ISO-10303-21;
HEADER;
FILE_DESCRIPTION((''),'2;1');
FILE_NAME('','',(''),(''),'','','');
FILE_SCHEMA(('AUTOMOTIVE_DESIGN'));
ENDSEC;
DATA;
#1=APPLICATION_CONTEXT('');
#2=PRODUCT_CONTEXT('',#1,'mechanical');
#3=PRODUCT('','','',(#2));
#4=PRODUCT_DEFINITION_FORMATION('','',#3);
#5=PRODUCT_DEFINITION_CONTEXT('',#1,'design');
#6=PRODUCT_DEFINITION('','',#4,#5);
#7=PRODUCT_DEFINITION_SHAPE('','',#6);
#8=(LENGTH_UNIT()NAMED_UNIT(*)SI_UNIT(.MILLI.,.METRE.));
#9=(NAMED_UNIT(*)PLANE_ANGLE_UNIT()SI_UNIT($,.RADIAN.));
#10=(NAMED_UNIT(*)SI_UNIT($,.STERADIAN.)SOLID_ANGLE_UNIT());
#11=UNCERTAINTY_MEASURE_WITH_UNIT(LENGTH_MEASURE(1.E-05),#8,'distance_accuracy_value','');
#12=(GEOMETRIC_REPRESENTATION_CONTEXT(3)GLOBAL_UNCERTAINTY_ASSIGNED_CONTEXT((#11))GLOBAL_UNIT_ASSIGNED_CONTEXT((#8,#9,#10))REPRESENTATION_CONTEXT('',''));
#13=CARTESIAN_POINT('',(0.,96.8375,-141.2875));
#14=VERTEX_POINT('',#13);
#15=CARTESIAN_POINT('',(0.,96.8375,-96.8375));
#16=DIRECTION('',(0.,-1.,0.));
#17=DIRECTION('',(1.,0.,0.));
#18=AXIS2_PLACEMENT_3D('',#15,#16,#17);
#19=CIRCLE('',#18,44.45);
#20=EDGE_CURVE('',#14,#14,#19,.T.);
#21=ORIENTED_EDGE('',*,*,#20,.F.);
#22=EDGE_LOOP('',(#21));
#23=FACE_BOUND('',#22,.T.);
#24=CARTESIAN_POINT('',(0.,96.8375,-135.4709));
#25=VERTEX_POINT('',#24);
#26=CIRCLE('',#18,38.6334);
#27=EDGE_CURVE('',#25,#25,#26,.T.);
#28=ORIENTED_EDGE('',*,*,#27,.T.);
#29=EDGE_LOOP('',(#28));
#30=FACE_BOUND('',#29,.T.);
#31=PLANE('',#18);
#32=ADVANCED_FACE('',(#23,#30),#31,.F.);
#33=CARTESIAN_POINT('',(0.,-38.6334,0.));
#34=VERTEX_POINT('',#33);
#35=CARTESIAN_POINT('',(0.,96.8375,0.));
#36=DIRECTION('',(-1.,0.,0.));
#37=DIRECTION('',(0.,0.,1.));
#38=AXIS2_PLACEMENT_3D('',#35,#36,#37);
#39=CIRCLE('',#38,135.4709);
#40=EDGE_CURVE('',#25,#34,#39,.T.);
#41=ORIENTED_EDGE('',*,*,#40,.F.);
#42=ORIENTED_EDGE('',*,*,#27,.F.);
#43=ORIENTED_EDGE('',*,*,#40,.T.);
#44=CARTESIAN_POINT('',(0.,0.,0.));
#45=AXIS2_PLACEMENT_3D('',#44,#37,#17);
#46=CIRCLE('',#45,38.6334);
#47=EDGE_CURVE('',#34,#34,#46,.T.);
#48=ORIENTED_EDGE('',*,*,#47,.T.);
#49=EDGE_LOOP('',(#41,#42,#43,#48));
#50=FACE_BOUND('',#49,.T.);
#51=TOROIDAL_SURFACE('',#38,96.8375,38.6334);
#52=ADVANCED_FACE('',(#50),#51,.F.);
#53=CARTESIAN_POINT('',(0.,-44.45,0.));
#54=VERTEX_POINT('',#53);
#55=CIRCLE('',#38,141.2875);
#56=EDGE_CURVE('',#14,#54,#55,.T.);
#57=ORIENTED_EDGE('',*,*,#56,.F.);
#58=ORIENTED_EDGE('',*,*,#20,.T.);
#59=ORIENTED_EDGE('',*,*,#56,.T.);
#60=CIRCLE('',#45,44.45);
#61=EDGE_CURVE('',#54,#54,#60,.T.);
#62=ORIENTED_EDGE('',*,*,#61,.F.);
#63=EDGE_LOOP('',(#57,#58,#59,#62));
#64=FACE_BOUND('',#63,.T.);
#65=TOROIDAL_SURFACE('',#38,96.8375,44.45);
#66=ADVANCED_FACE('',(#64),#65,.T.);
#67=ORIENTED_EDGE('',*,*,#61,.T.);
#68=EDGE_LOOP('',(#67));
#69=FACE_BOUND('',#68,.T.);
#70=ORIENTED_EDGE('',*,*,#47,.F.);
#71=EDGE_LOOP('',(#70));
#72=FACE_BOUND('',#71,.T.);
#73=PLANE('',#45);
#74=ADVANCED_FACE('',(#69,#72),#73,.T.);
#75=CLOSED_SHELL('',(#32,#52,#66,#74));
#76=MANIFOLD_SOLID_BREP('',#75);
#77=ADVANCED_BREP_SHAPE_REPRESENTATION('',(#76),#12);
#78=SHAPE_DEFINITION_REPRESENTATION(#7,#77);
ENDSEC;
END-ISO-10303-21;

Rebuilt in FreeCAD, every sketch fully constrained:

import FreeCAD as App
import Part
import Sketcher

V = App.Vector
Q = App.Units.Quantity

doc = App.newDocument("Part")
body = doc.addObject("PartDesign::Body", "Body")

# Sketch on XY plane
sketch1 = body.newObject("Sketcher::SketchObject", "Sketch")
sketch1.AttachmentSupport = (doc.getObject("XY_Plane"), [""])
sketch1.MapMode = "FlatFace"
sketch1.addGeometry(Part.Circle(V(0, 0, 0), V(0, 0, 1), 44.45), False)
sketch1.addGeometry(Part.Circle(V(0, 0, 0), V(0, 0, 1), 38.6334), False)
sketch1.addGeometry(Part.LineSegment(V(0, 96.8375, 0), V(10, 96.8375, 0)), True)  # axis
sketch1.addConstraint(Sketcher.Constraint("Horizontal", 2))
sketch1.addConstraint(Sketcher.Constraint("Coincident", 0, 3, -1, 1))
sketch1.addConstraint(Sketcher.Constraint("Coincident", 1, 3, -1, 1))
sketch1.addConstraint(Sketcher.Constraint("PointOnObject", 2, 1, -2))
sketch1.addConstraint(Sketcher.Constraint("Diameter", 0, Q("3.5 in")))
sketch1.addConstraint(Sketcher.Constraint("Diameter", 1, Q("3.042 in")))
sketch1.addConstraint(Sketcher.Constraint("DistanceY", -1, 1, 2, 1, Q("3.8125 in")))
sketch1.addConstraint(Sketcher.Constraint("DistanceX", 2, 1, 2, 2, Q("10 mm")))
revolution = body.newObject("PartDesign::Revolution", "Revolution")
revolution.Profile = sketch1
revolution.ReferenceAxis = (sketch1, ["Axis0"])
revolution.Angle = 90

doc.recompute()
